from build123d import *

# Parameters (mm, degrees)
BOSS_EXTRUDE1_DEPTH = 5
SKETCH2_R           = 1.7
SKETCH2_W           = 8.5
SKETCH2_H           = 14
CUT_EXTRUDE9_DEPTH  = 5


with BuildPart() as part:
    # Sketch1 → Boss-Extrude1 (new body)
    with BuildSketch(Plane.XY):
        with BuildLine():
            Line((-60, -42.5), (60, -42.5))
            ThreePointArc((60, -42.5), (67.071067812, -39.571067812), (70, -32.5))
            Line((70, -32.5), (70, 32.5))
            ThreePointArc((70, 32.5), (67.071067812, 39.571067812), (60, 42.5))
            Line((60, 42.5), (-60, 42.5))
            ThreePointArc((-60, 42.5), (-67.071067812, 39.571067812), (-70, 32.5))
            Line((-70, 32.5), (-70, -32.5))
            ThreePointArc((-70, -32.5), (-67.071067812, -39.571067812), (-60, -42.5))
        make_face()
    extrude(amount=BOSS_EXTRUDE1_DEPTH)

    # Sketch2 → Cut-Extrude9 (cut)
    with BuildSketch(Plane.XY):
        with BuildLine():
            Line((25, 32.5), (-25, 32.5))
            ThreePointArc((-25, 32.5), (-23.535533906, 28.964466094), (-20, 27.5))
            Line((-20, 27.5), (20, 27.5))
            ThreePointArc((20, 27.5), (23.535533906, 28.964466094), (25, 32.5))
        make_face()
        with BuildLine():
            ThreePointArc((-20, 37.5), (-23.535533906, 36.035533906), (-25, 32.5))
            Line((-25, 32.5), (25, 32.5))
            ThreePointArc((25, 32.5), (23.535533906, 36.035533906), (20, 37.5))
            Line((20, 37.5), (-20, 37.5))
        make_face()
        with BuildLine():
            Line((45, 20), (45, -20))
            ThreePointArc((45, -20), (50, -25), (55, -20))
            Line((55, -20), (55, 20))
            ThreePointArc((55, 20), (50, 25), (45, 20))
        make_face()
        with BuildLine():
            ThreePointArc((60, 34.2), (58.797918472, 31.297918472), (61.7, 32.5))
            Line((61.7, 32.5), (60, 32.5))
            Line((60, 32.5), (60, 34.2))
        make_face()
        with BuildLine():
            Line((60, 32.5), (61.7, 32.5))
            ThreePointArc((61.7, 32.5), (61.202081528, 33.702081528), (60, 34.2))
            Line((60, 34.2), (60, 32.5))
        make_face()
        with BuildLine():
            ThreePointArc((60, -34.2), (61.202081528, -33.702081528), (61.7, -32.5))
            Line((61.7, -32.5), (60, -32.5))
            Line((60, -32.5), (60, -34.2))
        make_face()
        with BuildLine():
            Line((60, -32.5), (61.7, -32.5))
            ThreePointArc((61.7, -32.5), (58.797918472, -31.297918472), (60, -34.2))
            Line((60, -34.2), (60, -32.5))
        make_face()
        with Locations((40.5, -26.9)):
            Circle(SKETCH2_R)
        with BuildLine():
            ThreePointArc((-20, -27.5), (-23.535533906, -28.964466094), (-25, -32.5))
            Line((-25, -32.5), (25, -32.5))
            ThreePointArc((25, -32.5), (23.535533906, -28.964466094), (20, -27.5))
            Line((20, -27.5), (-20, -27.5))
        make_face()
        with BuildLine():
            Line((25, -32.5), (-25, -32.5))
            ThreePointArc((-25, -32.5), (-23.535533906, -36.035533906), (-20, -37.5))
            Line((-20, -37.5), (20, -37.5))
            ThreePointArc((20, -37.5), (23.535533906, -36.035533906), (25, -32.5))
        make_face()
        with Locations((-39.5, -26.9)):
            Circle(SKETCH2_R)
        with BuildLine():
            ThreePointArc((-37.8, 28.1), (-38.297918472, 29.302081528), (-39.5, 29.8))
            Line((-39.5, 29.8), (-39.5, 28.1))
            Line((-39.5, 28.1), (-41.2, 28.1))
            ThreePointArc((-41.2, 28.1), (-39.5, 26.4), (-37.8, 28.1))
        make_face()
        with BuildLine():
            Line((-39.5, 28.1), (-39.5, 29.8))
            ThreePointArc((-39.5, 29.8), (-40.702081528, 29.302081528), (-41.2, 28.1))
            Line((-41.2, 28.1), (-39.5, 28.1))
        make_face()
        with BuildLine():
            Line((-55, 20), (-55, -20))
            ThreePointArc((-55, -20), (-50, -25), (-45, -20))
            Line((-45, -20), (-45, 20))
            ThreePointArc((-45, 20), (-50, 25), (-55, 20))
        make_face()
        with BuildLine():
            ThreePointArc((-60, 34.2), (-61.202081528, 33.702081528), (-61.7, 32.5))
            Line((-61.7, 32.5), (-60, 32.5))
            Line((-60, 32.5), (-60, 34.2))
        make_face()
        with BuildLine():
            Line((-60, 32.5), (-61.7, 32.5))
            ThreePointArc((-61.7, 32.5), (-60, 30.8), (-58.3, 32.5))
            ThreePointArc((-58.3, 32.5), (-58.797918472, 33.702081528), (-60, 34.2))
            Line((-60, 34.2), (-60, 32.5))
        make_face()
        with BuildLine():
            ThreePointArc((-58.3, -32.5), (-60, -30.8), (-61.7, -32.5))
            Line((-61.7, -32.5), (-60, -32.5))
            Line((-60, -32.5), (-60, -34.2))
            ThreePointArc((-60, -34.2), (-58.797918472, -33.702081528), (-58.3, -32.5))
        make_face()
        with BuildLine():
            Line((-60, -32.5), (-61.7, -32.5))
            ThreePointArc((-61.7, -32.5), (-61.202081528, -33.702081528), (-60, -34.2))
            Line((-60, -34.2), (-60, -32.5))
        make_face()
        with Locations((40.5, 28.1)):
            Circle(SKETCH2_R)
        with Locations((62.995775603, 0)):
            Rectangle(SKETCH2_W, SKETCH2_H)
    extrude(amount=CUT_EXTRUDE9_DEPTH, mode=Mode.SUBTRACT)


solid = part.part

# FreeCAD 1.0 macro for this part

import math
import FreeCAD as App
import Part
import Sketcher

doc = App.newDocument("Part")
body = doc.addObject("PartDesign::Body", "Body")

# Sketch on XY plane
sketch1 = body.newObject("Sketcher::SketchObject", "Sketch")
sketch1.AttachmentSupport = (doc.getObject("XY_Plane"), [""])
sketch1.MapMode = "FlatFace"
sketch1.addGeometry(Part.LineSegment(App.Vector(-60, -42, 0), App.Vector(60, -42, 0)), False)
sketch1.addGeometry(Part.ArcOfCircle(Part.Circle(App.Vector(60, -32, 0), App.Vector(0, 0, 1), 10), math.radians(-90), math.radians(0)), False)
sketch1.addGeometry(Part.LineSegment(App.Vector(70, -32, 0), App.Vector(70, 32, 0)), False)
sketch1.addGeometry(Part.ArcOfCircle(Part.Circle(App.Vector(60, 32, 0), App.Vector(0, 0, 1), 10), math.radians(0), math.radians(90)), False)
sketch1.addGeometry(Part.LineSegment(App.Vector(60, 42, 0), App.Vector(-60, 42, 0)), False)
sketch1.addGeometry(Part.ArcOfCircle(Part.Circle(App.Vector(-60, 32, 0), App.Vector(0, 0, 1), 10), math.radians(90), math.radians(180)), False)
sketch1.addGeometry(Part.LineSegment(App.Vector(-70, 32, 0), App.Vector(-70, -32, 0)), False)
sketch1.addGeometry(Part.ArcOfCircle(Part.Circle(App.Vector(-60, -32, 0), App.Vector(0, 0, 1), 10), math.radians(180), math.radians(270)), False)
sketch1.addConstraint(Sketcher.Constraint("Tangent", 0, 2, 1, 1))
sketch1.addConstraint(Sketcher.Constraint("Tangent", 1, 2, 2, 1))
sketch1.addConstraint(Sketcher.Constraint("Tangent", 2, 2, 3, 1))
sketch1.addConstraint(Sketcher.Constraint("Tangent", 3, 2, 4, 1))
sketch1.addConstraint(Sketcher.Constraint("Tangent", 4, 2, 5, 1))
sketch1.addConstraint(Sketcher.Constraint("Tangent", 5, 2, 6, 1))
sketch1.addConstraint(Sketcher.Constraint("Tangent", 6, 2, 7, 1))
sketch1.addConstraint(Sketcher.Constraint("Tangent", 7, 2, 0, 1))
sketch1.addConstraint(Sketcher.Constraint("Horizontal", 0))
sketch1.addConstraint(Sketcher.Constraint("Vertical", 2))
sketch1.addConstraint(Sketcher.Constraint("Horizontal", 4))
sketch1.addConstraint(Sketcher.Constraint("Vertical", 6))
sketch1.addConstraint(Sketcher.Constraint("Equal", 1, 3))
sketch1.addConstraint(Sketcher.Constraint("Equal", 3, 5))
sketch1.addConstraint(Sketcher.Constraint("Equal", 5, 7))
sketch1.addConstraint(Sketcher.Constraint("Symmetric", 1, 3, 5, 3, -1, 1))
sketch1.addConstraint(Sketcher.Constraint("Radius", 1, 10.0))
sketch1.addConstraint(Sketcher.Constraint("DistanceX", 0, 1, 0, 2, 120.0))
sketch1.addConstraint(Sketcher.Constraint("DistanceY", 2, 1, 2, 2, 65.0))
pad1 = body.newObject("PartDesign::Pad", "Pad")
pad1.Profile = sketch1
pad1.Length = 5

# Sketch on XY plane
sketch2 = body.newObject("Sketcher::SketchObject", "Sketch001")
sketch2.AttachmentSupport = (doc.getObject("XY_Plane"), [""])
sketch2.MapMode = "FlatFace"
sketch2.addGeometry(Part.ArcOfCircle(Part.Circle(App.Vector(-20, 32.5, 0), App.Vector(0, 0, 1), 5), math.radians(180), math.radians(270)), False)
sketch2.addGeometry(Part.LineSegment(App.Vector(-20, 27.5, 0), App.Vector(20, 27.5, 0)), False)
sketch2.addGeometry(Part.ArcOfCircle(Part.Circle(App.Vector(20, 32.5, 0), App.Vector(0, 0, 1), 5), math.radians(-90), math.radians(0)), False)
sketch2.addGeometry(Part.ArcOfCircle(Part.Circle(App.Vector(20, 32.5, 0), App.Vector(0, 0, 1), 5), math.radians(0), math.radians(90)), False)
sketch2.addGeometry(Part.LineSegment(App.Vector(20, 37.5, 0), App.Vector(-20, 37.5, 0)), False)
sketch2.addGeometry(Part.ArcOfCircle(Part.Circle(App.Vector(-20, 32.5, 0), App.Vector(0, 0, 1), 5), math.radians(90), math.radians(180)), False)
sketch2.addGeometry(Part.LineSegment(App.Vector(45, 20, 0), App.Vector(45, -20, 0)), False)
sketch2.addGeometry(Part.ArcOfCircle(Part.Circle(App.Vector(50, -20, 0), App.Vector(0, 0, 1), 5), math.radians(180), math.radians(360)), False)
sketch2.addGeometry(Part.LineSegment(App.Vector(55, -20, 0), App.Vector(55, 20, 0)), False)
sketch2.addGeometry(Part.ArcOfCircle(Part.Circle(App.Vector(50, 20, 0), App.Vector(0, 0, 1), 5), math.radians(0), math.radians(180)), False)
sketch2.addGeometry(Part.ArcOfCircle(Part.Circle(App.Vector(60, 32.5, 0), App.Vector(0, 0, 1), 1.7), math.radians(90), math.radians(360)), False)
sketch2.addGeometry(Part.ArcOfCircle(Part.Circle(App.Vector(60, 32.5, 0), App.Vector(0, 0, 1), 1.7), math.radians(0), math.radians(90)), False)
sketch2.addGeometry(Part.ArcOfCircle(Part.Circle(App.Vector(60, -32.5, 0), App.Vector(0, 0, 1), 1.7), math.radians(-90), math.radians(0)), False)
sketch2.addGeometry(Part.ArcOfCircle(Part.Circle(App.Vector(60, -32.5, 0), App.Vector(0, 0, 1), 1.7), math.radians(0), math.radians(270)), False)
sketch2.addGeometry(Part.Circle(App.Vector(40.5, -26.9, 0), App.Vector(0, 0, 1), 1.7), False)
sketch2.addGeometry(Part.ArcOfCircle(Part.Circle(App.Vector(-20, -32.5, 0), App.Vector(0, 0, 1), 5), math.radians(90), math.radians(180)), False)
sketch2.addGeometry(Part.ArcOfCircle(Part.Circle(App.Vector(-20, -32.5, 0), App.Vector(0, 0, 1), 5), math.radians(180), math.radians(270)), False)
sketch2.addGeometry(Part.LineSegment(App.Vector(-20, -37.5, 0), App.Vector(20, -37.5, 0)), False)
sketch2.addGeometry(Part.ArcOfCircle(Part.Circle(App.Vector(20, -32.5, 0), App.Vector(0, 0, 1), 5), math.radians(-90), math.radians(0)), False)
sketch2.addGeometry(Part.ArcOfCircle(Part.Circle(App.Vector(20, -32.5, 0), App.Vector(0, 0, 1), 5), math.radians(0), math.radians(90)), False)
sketch2.addGeometry(Part.LineSegment(App.Vector(20, -27.5, 0), App.Vector(-20, -27.5, 0)), False)
sketch2.addGeometry(Part.Circle(App.Vector(-39.5, -26.9, 0), App.Vector(0, 0, 1), 1.7), False)
sketch2.addGeometry(Part.ArcOfCircle(Part.Circle(App.Vector(-39.5, 28.1, 0), App.Vector(0, 0, 1), 1.7), math.radians(0), math.radians(90)), False)
sketch2.addGeometry(Part.ArcOfCircle(Part.Circle(App.Vector(-39.5, 28.1, 0), App.Vector(0, 0, 1), 1.7), math.radians(90), math.radians(180)), False)
sketch2.addGeometry(Part.ArcOfCircle(Part.Circle(App.Vector(-39.5, 28.1, 0), App.Vector(0, 0, 1), 1.7), math.radians(180), math.radians(360)), False)
sketch2.addGeometry(Part.LineSegment(App.Vector(-55, 20, 0), App.Vector(-55, -20, 0)), False)
sketch2.addGeometry(Part.ArcOfCircle(Part.Circle(App.Vector(-50, -20, 0), App.Vector(0, 0, 1), 5), math.radians(180), math.radians(360)), False)
sketch2.addGeometry(Part.LineSegment(App.Vector(-45, -20, 0), App.Vector(-45, 20, 0)), False)
sketch2.addGeometry(Part.ArcOfCircle(Part.Circle(App.Vector(-50, 20, 0), App.Vector(0, 0, 1), 5), math.radians(0), math.radians(180)), False)
sketch2.addGeometry(Part.ArcOfCircle(Part.Circle(App.Vector(-60, 32.5, 0), App.Vector(0, 0, 1), 1.7), math.radians(90), math.radians(180)), False)
sketch2.addGeometry(Part.ArcOfCircle(Part.Circle(App.Vector(-60, 32.5, 0), App.Vector(0, 0, 1), 1.7), math.radians(180), math.radians(360)), False)
sketch2.addGeometry(Part.ArcOfCircle(Part.Circle(App.Vector(-60, 32.5, 0), App.Vector(0, 0, 1), 1.7), math.radians(0), math.radians(90)), False)
sketch2.addGeometry(Part.ArcOfCircle(Part.Circle(App.Vector(-60, -32.5, 0), App.Vector(0, 0, 1), 1.7), math.radians(0), math.radians(180)), False)
sketch2.addGeometry(Part.ArcOfCircle(Part.Circle(App.Vector(-60, -32.5, 0), App.Vector(0, 0, 1), 1.7), math.radians(180), math.radians(270)), False)
sketch2.addGeometry(Part.ArcOfCircle(Part.Circle(App.Vector(-60, -32.5, 0), App.Vector(0, 0, 1), 1.7), math.radians(-90), math.radians(0)), False)
sketch2.addGeometry(Part.Circle(App.Vector(40.5, 28.1, 0), App.Vector(0, 0, 1), 1.7), False)
sketch2.addGeometry(Part.LineSegment(App.Vector(58.7, 7, 0), App.Vector(58.7, -7, 0)), False)
sketch2.addGeometry(Part.LineSegment(App.Vector(58.7, -7, 0), App.Vector(67.2, -7, 0)), False)
sketch2.addGeometry(Part.LineSegment(App.Vector(67.2, -7, 0), App.Vector(67.2, 7, 0)), False)
sketch2.addGeometry(Part.LineSegment(App.Vector(67.2, 7, 0), App.Vector(58.7, 7, 0)), False)
sketch2.addConstraint(Sketcher.Constraint("Tangent", 0, 2, 1, 1))
sketch2.addConstraint(Sketcher.Constraint("Tangent", 1, 2, 2, 1))
sketch2.addConstraint(Sketcher.Constraint("Tangent", 2, 2, 3, 1))
sketch2.addConstraint(Sketcher.Constraint("Tangent", 3, 2, 4, 1))
sketch2.addConstraint(Sketcher.Constraint("Tangent", 4, 2, 5, 1))
sketch2.addConstraint(Sketcher.Constraint("Tangent", 5, 2, 0, 1))
sketch2.addConstraint(Sketcher.Constraint("Tangent", 6, 2, 7, 1))
sketch2.addConstraint(Sketcher.Constraint("Tangent", 7, 2, 8, 1))
sketch2.addConstraint(Sketcher.Constraint("Tangent", 8, 2, 9, 1))
sketch2.addConstraint(Sketcher.Constraint("Tangent", 9, 2, 6, 1))
sketch2.addConstraint(Sketcher.Constraint("Tangent", 10, 1, 11, 2))
sketch2.addConstraint(Sketcher.Constraint("Coincident", 11, 1, 10, 2))
sketch2.addConstraint(Sketcher.Constraint("Tangent", 12, 1, 13, 2))
sketch2.addConstraint(Sketcher.Constraint("Coincident", 13, 1, 12, 2))
sketch2.addConstraint(Sketcher.Constraint("Tangent", 15, 2, 16, 1))
sketch2.addConstraint(Sketcher.Constraint("Tangent", 16, 2, 17, 1))
sketch2.addConstraint(Sketcher.Constraint("Tangent", 17, 2, 18, 1))
sketch2.addConstraint(Sketcher.Constraint("Tangent", 18, 2, 19, 1))
sketch2.addConstraint(Sketcher.Constraint("Tangent", 19, 2, 20, 1))
sketch2.addConstraint(Sketcher.Constraint("Tangent", 20, 2, 15, 1))
sketch2.addConstraint(Sketcher.Constraint("Tangent", 22, 2, 23, 1))
sketch2.addConstraint(Sketcher.Constraint("Tangent", 23, 2, 24, 1))
sketch2.addConstraint(Sketcher.Constraint("Tangent", 24, 2, 22, 1))
sketch2.addConstraint(Sketcher.Constraint("Tangent", 25, 2, 26, 1))
sketch2.addConstraint(Sketcher.Constraint("Tangent", 26, 2, 27, 1))
sketch2.addConstraint(Sketcher.Constraint("Tangent", 27, 2, 28, 1))
sketch2.addConstraint(Sketcher.Constraint("Tangent", 28, 2, 25, 1))
sketch2.addConstraint(Sketcher.Constraint("Tangent", 29, 2, 30, 1))
sketch2.addConstraint(Sketcher.Constraint("Tangent", 30, 2, 31, 1))
sketch2.addConstraint(Sketcher.Constraint("Tangent", 31, 2, 29, 1))
sketch2.addConstraint(Sketcher.Constraint("Tangent", 32, 2, 33, 1))
sketch2.addConstraint(Sketcher.Constraint("Tangent", 33, 2, 34, 1))
sketch2.addConstraint(Sketcher.Constraint("Tangent", 34, 2, 32, 1))
sketch2.addConstraint(Sketcher.Constraint("Coincident", 36, 2, 37, 1))
sketch2.addConstraint(Sketcher.Constraint("Coincident", 37, 2, 38, 1))
sketch2.addConstraint(Sketcher.Constraint("Coincident", 38, 2, 39, 1))
sketch2.addConstraint(Sketcher.Constraint("Coincident", 39, 2, 36, 1))
sketch2.addConstraint(Sketcher.Constraint("Horizontal", 1))
sketch2.addConstraint(Sketcher.Constraint("Horizontal", 4))
sketch2.addConstraint(Sketcher.Constraint("Vertical", 6))
sketch2.addConstraint(Sketcher.Constraint("Vertical", 8))
sketch2.addConstraint(Sketcher.Constraint("Horizontal", 17))
sketch2.addConstraint(Sketcher.Constraint("Horizontal", 20))
sketch2.addConstraint(Sketcher.Constraint("Vertical", 25))
sketch2.addConstraint(Sketcher.Constraint("Vertical", 27))
sketch2.addConstraint(Sketcher.Constraint("Vertical", 36))
sketch2.addConstraint(Sketcher.Constraint("Horizontal", 37))
sketch2.addConstraint(Sketcher.Constraint("Vertical", 38))
sketch2.addConstraint(Sketcher.Constraint("Horizontal", 39))
sketch2.addConstraint(Sketcher.Constraint("Equal", 0, 2))
sketch2.addConstraint(Sketcher.Constraint("Equal", 2, 3))
sketch2.addConstraint(Sketcher.Constraint("Equal", 5, 7))
sketch2.addConstraint(Sketcher.Constraint("Equal", 11, 12))
sketch2.addConstraint(Sketcher.Constraint("Equal", 13, 14))
sketch2.addConstraint(Sketcher.Constraint("Equal", 9, 15))
sketch2.addConstraint(Sketcher.Constraint("Equal", 15, 16))
sketch2.addConstraint(Sketcher.Constraint("Equal", 16, 18))
sketch2.addConstraint(Sketcher.Constraint("Equal", 14, 21))
sketch2.addConstraint(Sketcher.Constraint("Equal", 21, 22))
sketch2.addConstraint(Sketcher.Constraint("Equal", 19, 26))
sketch2.addConstraint(Sketcher.Constraint("Equal", 24, 29))
sketch2.addConstraint(Sketcher.Constraint("Equal", 31, 32))
sketch2.addConstraint(Sketcher.Constraint("Equal", 34, 35))
sketch2.addConstraint(Sketcher.Constraint("Symmetric", 2, 3, 15, 3, -1, 1))
sketch2.addConstraint(Sketcher.Constraint("Symmetric", 9, 3, 26, 3, -1, 1))
sketch2.addConstraint(Sketcher.Constraint("Symmetric", 12, 3, 29, 3, -1, 1))
sketch2.addConstraint(Sketcher.Constraint("Symmetric", 10, 3, 32, 3, -1, 1))
sketch2.addConstraint(Sketcher.Constraint("Symmetric", 5, 2, 18, 2, -1, 1))
sketch2.addConstraint(Sketcher.Constraint("Symmetric", 10, 3, 29, 3, -2))
sketch2.addConstraint(Sketcher.Constraint("Symmetric", 2, 2, 5, 2, -2))
sketch2.addConstraint(Sketcher.Constraint("Horizontal", 5, 3, 10, 3))
sketch2.addConstraint(Sketcher.Constraint("Horizontal", 14, 3, 21, 3))
sketch2.addConstraint(Sketcher.Constraint("Horizontal", 7, 3, 26, 3))
sketch2.addConstraint(Sketcher.Constraint("Horizontal", 9, 3, 28, 3))
sketch2.addConstraint(Sketcher.Constraint("Horizontal", 24, 3, 35, 3))
sketch2.addConstraint(Sketcher.Constraint("Horizontal", 31, 3, 2, 2))
sketch2.addConstraint(Sketcher.Constraint("Horizontal", 5, 2, 11, 1))
sketch2.addConstraint(Sketcher.Constraint("Horizontal", 34, 3, 13, 1))
sketch2.addConstraint(Sketcher.Constraint("Horizontal", 13, 1, 15, 2))
sketch2.addConstraint(Sketcher.Constraint("Horizontal", 35, 3, 23, 2))
sketch2.addConstraint(Sketcher.Constraint("Horizontal", 23, 2, 24, 2))
sketch2.addConstraint(Sketcher.Constraint("Horizontal", 11, 1, 29, 2))
sketch2.addConstraint(Sketcher.Constraint("Horizontal", 29, 2, 30, 2))
sketch2.addConstraint(Sketcher.Constraint("Horizontal", 18, 2, 32, 2))
sketch2.addConstraint(Sketcher.Constraint("Horizontal", 32, 2, 34, 2))
sketch2.addConstraint(Sketcher.Constraint("Vertical", 21, 3, 22, 3))
sketch2.addConstraint(Sketcher.Constraint("Vertical", 14, 3, 35, 3))
sketch2.addConstraint(Sketcher.Constraint("Vertical", 13, 3, 10, 1))
sketch2.addConstraint(Sketcher.Constraint("Vertical", 10, 1, 12, 1))
sketch2.addConstraint(Sketcher.Constraint("Vertical", 24, 3, 22, 2))
sketch2.addConstraint(Sketcher.Constraint("Vertical", 34, 3, 31, 2))
sketch2.addConstraint(Sketcher.Constraint("Vertical", 31, 2, 33, 2))
sketch2.addConstraint(Sketcher.Constraint("Equal", 20, 6))
sketch2.addConstraint(Sketcher.Constraint("Radius", 0, 5.0))
sketch2.addConstraint(Sketcher.Constraint("Diameter", 14, 3.4))
sketch2.addConstraint(Sketcher.Constraint("DistanceX", 1, 1, 1, 2, 40.0))
sketch2.addConstraint(Sketcher.Constraint("DistanceY", 36, 2, 36, 1, 14.0))
sketch2.addConstraint(Sketcher.Constraint("DistanceX", 37, 1, 37, 2, 8.5))
sketch2.addConstraint(Sketcher.Constraint("DistanceX", -1, 1, 7, 3, 50.0))
sketch2.addConstraint(Sketcher.Constraint("DistanceX", -1, 1, 10, 3, 60.0))
sketch2.addConstraint(Sketcher.Constraint("DistanceY", 36, 2, -1, 1, 7.0))
sketch2.addConstraint(Sketcher.Constraint("DistanceY", -1, 1, 0, 3, 32.5))
sketch2.addConstraint(Sketcher.Constraint("DistanceX", -1, 1, 14, 3, 40.5))
sketch2.addConstraint(Sketcher.Constraint("DistanceY", 14, 3, -1, 1, 26.9))
sketch2.addConstraint(Sketcher.Constraint("DistanceX", 21, 3, -1, 1, 39.5))
sketch2.addConstraint(Sketcher.Constraint("DistanceY", -1, 1, 22, 3, 28.1))
sketch2.addConstraint(Sketcher.Constraint("DistanceX", -1, 1, 36, 2, 58.745776))
pocket1 = body.newObject("PartDesign::Pocket", "Pocket")
pocket1.Profile = sketch2
pocket1.Length = 5
pocket1.Reversed = True

doc.recompute()
